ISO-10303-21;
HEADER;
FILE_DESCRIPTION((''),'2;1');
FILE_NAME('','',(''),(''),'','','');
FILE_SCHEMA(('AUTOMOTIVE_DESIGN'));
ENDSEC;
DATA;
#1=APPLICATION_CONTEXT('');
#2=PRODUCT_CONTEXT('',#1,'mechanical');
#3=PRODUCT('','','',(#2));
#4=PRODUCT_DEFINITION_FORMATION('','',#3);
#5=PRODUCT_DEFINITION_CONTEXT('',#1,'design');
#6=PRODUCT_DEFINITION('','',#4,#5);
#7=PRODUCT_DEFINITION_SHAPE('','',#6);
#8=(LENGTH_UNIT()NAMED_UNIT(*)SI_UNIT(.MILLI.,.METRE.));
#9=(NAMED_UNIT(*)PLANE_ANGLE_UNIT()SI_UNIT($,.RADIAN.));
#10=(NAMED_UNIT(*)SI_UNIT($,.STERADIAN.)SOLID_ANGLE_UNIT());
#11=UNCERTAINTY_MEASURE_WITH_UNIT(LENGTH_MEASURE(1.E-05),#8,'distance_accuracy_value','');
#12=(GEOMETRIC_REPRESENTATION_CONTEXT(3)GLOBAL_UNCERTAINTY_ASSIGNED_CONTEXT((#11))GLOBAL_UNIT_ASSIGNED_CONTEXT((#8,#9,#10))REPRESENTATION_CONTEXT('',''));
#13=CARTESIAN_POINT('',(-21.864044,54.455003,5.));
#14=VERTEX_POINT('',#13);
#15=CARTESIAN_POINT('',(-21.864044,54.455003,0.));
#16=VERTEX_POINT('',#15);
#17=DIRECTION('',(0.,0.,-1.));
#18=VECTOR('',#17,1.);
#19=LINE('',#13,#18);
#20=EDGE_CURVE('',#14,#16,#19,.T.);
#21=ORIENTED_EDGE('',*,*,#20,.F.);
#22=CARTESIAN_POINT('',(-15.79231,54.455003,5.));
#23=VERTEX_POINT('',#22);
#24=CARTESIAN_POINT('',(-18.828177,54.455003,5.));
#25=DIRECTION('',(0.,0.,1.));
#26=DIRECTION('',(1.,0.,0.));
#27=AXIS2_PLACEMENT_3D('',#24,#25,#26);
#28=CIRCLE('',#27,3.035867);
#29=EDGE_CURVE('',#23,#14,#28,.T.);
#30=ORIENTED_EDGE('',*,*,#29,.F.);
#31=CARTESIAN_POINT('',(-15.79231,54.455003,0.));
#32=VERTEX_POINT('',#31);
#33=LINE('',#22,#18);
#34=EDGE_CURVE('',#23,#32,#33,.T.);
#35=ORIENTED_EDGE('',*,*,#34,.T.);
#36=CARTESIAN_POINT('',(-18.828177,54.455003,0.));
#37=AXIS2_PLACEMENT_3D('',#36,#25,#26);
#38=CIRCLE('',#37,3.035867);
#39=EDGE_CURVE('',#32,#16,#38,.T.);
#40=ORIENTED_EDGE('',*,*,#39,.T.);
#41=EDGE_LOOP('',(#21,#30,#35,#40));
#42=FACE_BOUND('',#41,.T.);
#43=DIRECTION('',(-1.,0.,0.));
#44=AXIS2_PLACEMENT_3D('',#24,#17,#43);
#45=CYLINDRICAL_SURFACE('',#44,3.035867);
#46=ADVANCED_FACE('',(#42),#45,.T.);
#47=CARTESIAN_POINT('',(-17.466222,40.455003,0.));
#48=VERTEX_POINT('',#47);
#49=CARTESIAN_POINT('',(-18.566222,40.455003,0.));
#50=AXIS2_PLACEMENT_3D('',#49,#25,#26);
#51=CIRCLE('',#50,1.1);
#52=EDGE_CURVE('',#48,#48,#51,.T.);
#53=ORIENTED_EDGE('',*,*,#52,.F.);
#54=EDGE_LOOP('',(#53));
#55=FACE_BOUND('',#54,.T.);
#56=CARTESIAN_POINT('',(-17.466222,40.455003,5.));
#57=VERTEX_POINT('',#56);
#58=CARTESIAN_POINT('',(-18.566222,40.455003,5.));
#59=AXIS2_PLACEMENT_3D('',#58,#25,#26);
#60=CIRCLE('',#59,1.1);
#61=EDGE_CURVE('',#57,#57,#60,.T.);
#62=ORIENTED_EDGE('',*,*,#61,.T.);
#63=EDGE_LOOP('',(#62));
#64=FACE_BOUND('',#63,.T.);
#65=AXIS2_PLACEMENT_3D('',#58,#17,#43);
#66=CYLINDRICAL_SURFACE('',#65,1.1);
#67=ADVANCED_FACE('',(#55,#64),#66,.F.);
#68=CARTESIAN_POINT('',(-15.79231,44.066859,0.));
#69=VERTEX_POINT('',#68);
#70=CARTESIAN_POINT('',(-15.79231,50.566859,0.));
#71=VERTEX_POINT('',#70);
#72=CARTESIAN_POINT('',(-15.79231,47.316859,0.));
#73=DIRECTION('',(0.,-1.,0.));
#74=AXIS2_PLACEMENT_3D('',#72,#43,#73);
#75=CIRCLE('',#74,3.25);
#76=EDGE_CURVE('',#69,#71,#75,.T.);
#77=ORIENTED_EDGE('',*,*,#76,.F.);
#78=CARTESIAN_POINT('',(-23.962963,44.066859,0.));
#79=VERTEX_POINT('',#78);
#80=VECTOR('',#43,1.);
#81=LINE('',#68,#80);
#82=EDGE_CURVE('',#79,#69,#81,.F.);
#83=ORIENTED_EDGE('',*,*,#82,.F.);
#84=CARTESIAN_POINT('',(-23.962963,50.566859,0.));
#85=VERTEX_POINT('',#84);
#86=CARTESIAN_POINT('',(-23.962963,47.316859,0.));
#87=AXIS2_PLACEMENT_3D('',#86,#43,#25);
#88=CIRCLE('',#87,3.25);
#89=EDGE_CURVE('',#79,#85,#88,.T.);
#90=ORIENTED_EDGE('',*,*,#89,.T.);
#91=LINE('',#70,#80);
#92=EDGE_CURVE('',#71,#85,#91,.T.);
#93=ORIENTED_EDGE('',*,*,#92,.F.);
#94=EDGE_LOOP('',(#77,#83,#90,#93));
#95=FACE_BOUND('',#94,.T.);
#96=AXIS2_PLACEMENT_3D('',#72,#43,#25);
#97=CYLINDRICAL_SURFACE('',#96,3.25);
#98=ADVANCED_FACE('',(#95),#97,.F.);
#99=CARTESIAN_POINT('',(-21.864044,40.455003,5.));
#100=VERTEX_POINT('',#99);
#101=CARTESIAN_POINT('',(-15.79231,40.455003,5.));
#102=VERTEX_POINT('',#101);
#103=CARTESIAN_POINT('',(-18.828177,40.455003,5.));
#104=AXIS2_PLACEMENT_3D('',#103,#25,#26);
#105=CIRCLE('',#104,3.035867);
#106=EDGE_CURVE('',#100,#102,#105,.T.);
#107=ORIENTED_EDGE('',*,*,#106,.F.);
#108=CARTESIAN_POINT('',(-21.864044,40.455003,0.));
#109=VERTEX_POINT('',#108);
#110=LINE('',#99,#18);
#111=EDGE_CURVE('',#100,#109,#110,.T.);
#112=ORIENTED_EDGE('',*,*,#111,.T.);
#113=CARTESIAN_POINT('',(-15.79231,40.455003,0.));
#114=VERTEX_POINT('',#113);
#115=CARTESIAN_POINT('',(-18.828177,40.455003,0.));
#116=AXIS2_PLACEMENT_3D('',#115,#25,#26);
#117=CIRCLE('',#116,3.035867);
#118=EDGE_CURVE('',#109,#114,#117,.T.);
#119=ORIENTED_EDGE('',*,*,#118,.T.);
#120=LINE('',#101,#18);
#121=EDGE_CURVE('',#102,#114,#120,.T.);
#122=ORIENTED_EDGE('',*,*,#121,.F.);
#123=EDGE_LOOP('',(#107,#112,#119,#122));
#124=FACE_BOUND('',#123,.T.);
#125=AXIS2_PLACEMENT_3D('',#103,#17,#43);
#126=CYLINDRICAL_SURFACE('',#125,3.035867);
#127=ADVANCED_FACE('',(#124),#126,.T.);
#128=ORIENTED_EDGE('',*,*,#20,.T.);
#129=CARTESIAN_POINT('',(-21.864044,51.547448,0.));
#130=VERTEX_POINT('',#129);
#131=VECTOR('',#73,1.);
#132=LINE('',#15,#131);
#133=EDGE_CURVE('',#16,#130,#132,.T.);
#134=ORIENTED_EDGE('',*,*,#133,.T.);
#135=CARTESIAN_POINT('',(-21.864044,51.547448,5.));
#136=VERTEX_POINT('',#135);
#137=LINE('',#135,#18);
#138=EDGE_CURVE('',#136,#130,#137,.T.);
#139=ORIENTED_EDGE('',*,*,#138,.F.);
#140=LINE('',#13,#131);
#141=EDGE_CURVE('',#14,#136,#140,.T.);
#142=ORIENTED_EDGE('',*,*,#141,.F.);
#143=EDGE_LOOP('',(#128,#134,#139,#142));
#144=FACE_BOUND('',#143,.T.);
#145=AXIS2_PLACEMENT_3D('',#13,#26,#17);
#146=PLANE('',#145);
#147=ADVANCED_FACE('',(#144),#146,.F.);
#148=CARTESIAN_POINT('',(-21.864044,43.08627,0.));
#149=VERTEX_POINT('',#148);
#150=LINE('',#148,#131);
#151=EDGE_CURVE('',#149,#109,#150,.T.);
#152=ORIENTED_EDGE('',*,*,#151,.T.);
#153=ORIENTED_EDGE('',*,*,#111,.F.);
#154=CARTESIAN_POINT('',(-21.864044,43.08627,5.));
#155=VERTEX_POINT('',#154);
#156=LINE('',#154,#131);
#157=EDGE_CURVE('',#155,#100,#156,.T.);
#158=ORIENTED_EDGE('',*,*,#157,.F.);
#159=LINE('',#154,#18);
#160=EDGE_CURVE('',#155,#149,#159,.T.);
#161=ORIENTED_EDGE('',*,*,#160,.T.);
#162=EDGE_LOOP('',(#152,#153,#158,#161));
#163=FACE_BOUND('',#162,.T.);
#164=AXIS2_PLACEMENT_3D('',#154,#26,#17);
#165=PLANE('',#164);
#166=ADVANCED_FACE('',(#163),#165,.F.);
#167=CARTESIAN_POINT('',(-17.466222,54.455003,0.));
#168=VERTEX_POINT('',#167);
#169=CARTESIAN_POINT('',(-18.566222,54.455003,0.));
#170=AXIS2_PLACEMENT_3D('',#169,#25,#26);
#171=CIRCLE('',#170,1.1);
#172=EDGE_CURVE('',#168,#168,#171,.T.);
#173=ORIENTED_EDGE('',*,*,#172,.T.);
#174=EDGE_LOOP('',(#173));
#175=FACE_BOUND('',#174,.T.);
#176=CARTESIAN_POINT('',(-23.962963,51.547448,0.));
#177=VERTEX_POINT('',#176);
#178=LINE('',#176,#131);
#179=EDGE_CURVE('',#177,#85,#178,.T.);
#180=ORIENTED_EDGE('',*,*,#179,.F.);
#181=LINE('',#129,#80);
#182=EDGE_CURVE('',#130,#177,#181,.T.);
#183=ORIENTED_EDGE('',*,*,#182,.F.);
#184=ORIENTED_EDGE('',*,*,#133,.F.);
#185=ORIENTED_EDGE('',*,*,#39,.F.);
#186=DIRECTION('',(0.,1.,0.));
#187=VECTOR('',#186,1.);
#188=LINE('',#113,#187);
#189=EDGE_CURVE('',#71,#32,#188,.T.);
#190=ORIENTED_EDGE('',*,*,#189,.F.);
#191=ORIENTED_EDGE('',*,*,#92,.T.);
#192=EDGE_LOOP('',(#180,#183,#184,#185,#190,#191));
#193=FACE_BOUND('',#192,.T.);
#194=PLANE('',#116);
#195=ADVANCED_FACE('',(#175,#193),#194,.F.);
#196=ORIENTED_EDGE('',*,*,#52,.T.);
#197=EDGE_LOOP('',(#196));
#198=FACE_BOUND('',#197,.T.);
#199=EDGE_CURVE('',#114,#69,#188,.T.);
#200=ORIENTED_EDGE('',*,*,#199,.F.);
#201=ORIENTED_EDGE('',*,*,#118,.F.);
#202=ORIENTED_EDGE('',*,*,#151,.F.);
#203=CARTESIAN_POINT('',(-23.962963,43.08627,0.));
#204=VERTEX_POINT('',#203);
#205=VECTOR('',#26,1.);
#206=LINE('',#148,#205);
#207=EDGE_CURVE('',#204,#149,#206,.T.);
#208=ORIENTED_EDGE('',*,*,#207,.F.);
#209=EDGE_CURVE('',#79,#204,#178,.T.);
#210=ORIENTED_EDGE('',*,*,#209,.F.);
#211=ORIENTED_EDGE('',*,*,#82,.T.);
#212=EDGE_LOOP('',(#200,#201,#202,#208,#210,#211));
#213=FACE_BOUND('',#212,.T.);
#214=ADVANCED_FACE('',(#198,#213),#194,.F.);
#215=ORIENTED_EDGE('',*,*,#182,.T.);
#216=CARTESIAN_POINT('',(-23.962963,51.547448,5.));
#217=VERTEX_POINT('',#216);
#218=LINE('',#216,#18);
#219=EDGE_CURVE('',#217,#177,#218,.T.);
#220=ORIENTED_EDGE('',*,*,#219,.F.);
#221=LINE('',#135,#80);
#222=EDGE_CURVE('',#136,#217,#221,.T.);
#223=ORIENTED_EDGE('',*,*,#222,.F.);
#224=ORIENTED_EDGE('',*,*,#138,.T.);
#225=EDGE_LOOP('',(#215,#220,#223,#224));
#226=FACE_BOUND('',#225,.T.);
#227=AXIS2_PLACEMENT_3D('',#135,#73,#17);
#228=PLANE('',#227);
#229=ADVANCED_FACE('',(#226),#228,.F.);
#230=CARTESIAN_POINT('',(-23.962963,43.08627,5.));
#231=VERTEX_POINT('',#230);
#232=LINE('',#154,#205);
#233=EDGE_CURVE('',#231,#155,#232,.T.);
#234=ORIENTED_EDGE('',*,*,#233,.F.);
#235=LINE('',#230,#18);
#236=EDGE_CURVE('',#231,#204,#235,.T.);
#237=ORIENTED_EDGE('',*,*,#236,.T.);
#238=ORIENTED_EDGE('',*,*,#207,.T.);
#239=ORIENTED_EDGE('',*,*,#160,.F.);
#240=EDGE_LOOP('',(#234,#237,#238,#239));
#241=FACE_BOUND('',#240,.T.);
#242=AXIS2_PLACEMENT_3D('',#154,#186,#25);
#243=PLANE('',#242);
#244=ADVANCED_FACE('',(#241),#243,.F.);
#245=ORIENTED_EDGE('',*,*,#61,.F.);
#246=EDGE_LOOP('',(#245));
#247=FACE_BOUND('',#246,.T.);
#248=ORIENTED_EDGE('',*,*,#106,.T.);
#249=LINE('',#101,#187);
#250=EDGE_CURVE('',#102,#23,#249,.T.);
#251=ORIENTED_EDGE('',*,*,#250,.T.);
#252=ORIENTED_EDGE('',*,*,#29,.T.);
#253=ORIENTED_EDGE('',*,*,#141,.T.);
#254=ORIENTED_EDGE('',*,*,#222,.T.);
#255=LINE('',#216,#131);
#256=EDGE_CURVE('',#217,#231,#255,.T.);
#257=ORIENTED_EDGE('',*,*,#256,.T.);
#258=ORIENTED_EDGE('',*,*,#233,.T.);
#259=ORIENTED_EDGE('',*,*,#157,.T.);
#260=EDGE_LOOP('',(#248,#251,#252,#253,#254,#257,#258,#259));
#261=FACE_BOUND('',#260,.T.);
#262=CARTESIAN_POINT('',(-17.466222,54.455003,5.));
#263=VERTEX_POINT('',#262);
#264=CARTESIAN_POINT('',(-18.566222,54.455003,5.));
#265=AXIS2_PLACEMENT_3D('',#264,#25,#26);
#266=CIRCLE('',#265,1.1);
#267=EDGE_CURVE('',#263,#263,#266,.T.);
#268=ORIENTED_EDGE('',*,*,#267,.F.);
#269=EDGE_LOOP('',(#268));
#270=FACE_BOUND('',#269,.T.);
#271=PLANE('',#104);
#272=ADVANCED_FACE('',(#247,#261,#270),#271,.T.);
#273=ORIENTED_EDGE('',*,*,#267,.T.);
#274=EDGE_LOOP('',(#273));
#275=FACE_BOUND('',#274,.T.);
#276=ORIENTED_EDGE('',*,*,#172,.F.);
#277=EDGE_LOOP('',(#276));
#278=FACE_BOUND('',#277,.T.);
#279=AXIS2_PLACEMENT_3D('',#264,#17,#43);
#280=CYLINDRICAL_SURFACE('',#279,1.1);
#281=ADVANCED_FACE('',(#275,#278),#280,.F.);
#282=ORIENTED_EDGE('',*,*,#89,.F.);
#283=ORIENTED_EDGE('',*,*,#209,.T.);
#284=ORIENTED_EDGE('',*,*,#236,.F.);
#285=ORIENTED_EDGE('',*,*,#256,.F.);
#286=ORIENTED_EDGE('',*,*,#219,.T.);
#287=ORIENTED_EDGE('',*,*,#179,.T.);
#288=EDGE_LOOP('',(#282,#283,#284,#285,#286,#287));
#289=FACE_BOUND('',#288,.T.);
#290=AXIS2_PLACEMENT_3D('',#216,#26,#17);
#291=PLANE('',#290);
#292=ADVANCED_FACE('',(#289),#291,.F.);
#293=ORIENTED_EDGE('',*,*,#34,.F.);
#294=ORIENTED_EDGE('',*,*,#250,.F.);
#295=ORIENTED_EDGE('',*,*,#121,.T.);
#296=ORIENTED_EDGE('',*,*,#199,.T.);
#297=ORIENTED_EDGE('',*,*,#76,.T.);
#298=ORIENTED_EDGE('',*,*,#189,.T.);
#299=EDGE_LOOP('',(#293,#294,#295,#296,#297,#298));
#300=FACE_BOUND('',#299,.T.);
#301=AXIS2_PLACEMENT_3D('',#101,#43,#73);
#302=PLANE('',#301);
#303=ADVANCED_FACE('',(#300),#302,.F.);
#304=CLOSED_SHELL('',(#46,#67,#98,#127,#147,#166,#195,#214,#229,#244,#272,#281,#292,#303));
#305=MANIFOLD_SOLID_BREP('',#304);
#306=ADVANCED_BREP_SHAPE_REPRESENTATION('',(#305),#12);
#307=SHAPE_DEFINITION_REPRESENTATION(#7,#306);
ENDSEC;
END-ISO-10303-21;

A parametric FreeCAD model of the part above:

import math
import FreeCAD as App
import Part
import Sketcher

doc = App.newDocument("Part")
body = doc.addObject("PartDesign::Body", "Body")

# Sketch on XY plane
sketch1 = body.newObject("Sketcher::SketchObject", "Sketch")
sketch1.AttachmentSupport = (doc.getObject("XY_Plane"), [""])
sketch1.MapMode = "FlatFace"
sketch1.addGeometry(Part.LineSegment(App.Vector(-15.79231, 40.455003, 0), App.Vector(-15.79231, 54.455003, 0)), False)
sketch1.addGeometry(Part.ArcOfCircle(Part.Circle(App.Vector(-18.828177, 54.455003, 0), App.Vector(0, 0, 1), 3.035867), math.radians(0), math.radians(180)), False)
sketch1.addGeometry(Part.LineSegment(App.Vector(-21.864044, 54.455003, 0), App.Vector(-21.864044, 51.547448, 0)), False)
sketch1.addGeometry(Part.LineSegment(App.Vector(-21.864044, 51.547448, 0), App.Vector(-23.962963, 51.547448, 0)), False)
sketch1.addGeometry(Part.LineSegment(App.Vector(-23.962963, 51.547448, 0), App.Vector(-23.962963, 43.08627, 0)), False)
sketch1.addGeometry(Part.LineSegment(App.Vector(-23.962963, 43.08627, 0), App.Vector(-21.864044, 43.08627, 0)), False)
sketch1.addGeometry(Part.LineSegment(App.Vector(-21.864044, 43.08627, 0), App.Vector(-21.864044, 40.455003, 0)), False)
sketch1.addGeometry(Part.ArcOfCircle(Part.Circle(App.Vector(-18.828177, 40.455003, 0), App.Vector(0, 0, 1), 3.035867), math.radians(180), math.radians(360)), False)
sketch1.addGeometry(Part.Circle(App.Vector(-18.566222, 40.455003, 0), App.Vector(0, 0, 1), 1.1), False)
sketch1.addGeometry(Part.Circle(App.Vector(-18.566222, 54.455003, 0), App.Vector(0, 0, 1), 1.1), False)
sketch1.addConstraint(Sketcher.Constraint("Tangent", 0, 2, 1, 1))
sketch1.addConstraint(Sketcher.Constraint("Tangent", 1, 2, 2, 1))
sketch1.addConstraint(Sketcher.Constraint("Coincident", 2, 2, 3, 1))
sketch1.addConstraint(Sketcher.Constraint("Coincident", 3, 2, 4, 1))
sketch1.addConstraint(Sketcher.Constraint("Coincident", 4, 2, 5, 1))
sketch1.addConstraint(Sketcher.Constraint("Coincident", 5, 2, 6, 1))
sketch1.addConstraint(Sketcher.Constraint("Tangent", 6, 2, 7, 1))
sketch1.addConstraint(Sketcher.Constraint("Tangent", 7, 2, 0, 1))
sketch1.addConstraint(Sketcher.Constraint("Vertical", 0))
sketch1.addConstraint(Sketcher.Constraint("Vertical", 2))
sketch1.addConstraint(Sketcher.Constraint("Horizontal", 3))
sketch1.addConstraint(Sketcher.Constraint("Vertical", 4))
sketch1.addConstraint(Sketcher.Constraint("Horizontal", 5))
sketch1.addConstraint(Sketcher.Constraint("Vertical", 6))
sketch1.addConstraint(Sketcher.Constraint("Equal", 1, 7))
sketch1.addConstraint(Sketcher.Constraint("Equal", 8, 9))
sketch1.addConstraint(Sketcher.Constraint("Horizontal", 7, 3, 8, 3))
sketch1.addConstraint(Sketcher.Constraint("Horizontal", 1, 3, 9, 3))
sketch1.addConstraint(Sketcher.Constraint("Vertical", 8, 3, 9, 3))
sketch1.addConstraint(Sketcher.Constraint("Diameter", 8, 2.2))
sketch1.addConstraint(Sketcher.Constraint("DistanceY", 0, 1, 0, 2, 14.0))
sketch1.addConstraint(Sketcher.Constraint("Radius", 1, 3.035867))
sketch1.addConstraint(Sketcher.Constraint("DistanceX", 3, 2, 3, 1, 2.098919))
sketch1.addConstraint(Sketcher.Constraint("DistanceY", 2, 2, 2, 1, 2.907555))
sketch1.addConstraint(Sketcher.Constraint("DistanceY", 4, 2, 4, 1, 8.461178))
sketch1.addConstraint(Sketcher.Constraint("DistanceX", 8, 3, -1, 1, 18.566222))
sketch1.addConstraint(Sketcher.Constraint("DistanceX", 0, 2, -1, 1, 15.79231))
sketch1.addConstraint(Sketcher.Constraint("DistanceY", -1, 1, 4, 2, 43.08627))
pad1 = body.newObject("PartDesign::Pad", "Pad")
pad1.Profile = sketch1
pad1.Length = 5

# Sketch on YZ plane
sketch2 = body.newObject("Sketcher::SketchObject", "Sketch001")
sketch2.AttachmentSupport = (doc.getObject("YZ_Plane"), [""])
sketch2.MapMode = "FlatFace"
sketch2.AttachmentOffset = App.Placement(App.Vector(0, 0, -23.962963), App.Rotation())
sketch2.addGeometry(Part.Circle(App.Vector(47.316859, 0, 0), App.Vector(0, 0, 1), 3.25), False)
sketch2.addConstraint(Sketcher.Constraint("PointOnObject", 0, 3, -1))
sketch2.addConstraint(Sketcher.Constraint("Diameter", 0, 6.5))
sketch2.addConstraint(Sketcher.Constraint("DistanceX", -1, 1, 0, 3, 47.316859))
pocket1 = body.newObject("PartDesign::Pocket", "Pocket")
pocket1.Profile = sketch2
pocket1.Type = "ThroughAll"
pocket1.Reversed = True

doc.recompute()
